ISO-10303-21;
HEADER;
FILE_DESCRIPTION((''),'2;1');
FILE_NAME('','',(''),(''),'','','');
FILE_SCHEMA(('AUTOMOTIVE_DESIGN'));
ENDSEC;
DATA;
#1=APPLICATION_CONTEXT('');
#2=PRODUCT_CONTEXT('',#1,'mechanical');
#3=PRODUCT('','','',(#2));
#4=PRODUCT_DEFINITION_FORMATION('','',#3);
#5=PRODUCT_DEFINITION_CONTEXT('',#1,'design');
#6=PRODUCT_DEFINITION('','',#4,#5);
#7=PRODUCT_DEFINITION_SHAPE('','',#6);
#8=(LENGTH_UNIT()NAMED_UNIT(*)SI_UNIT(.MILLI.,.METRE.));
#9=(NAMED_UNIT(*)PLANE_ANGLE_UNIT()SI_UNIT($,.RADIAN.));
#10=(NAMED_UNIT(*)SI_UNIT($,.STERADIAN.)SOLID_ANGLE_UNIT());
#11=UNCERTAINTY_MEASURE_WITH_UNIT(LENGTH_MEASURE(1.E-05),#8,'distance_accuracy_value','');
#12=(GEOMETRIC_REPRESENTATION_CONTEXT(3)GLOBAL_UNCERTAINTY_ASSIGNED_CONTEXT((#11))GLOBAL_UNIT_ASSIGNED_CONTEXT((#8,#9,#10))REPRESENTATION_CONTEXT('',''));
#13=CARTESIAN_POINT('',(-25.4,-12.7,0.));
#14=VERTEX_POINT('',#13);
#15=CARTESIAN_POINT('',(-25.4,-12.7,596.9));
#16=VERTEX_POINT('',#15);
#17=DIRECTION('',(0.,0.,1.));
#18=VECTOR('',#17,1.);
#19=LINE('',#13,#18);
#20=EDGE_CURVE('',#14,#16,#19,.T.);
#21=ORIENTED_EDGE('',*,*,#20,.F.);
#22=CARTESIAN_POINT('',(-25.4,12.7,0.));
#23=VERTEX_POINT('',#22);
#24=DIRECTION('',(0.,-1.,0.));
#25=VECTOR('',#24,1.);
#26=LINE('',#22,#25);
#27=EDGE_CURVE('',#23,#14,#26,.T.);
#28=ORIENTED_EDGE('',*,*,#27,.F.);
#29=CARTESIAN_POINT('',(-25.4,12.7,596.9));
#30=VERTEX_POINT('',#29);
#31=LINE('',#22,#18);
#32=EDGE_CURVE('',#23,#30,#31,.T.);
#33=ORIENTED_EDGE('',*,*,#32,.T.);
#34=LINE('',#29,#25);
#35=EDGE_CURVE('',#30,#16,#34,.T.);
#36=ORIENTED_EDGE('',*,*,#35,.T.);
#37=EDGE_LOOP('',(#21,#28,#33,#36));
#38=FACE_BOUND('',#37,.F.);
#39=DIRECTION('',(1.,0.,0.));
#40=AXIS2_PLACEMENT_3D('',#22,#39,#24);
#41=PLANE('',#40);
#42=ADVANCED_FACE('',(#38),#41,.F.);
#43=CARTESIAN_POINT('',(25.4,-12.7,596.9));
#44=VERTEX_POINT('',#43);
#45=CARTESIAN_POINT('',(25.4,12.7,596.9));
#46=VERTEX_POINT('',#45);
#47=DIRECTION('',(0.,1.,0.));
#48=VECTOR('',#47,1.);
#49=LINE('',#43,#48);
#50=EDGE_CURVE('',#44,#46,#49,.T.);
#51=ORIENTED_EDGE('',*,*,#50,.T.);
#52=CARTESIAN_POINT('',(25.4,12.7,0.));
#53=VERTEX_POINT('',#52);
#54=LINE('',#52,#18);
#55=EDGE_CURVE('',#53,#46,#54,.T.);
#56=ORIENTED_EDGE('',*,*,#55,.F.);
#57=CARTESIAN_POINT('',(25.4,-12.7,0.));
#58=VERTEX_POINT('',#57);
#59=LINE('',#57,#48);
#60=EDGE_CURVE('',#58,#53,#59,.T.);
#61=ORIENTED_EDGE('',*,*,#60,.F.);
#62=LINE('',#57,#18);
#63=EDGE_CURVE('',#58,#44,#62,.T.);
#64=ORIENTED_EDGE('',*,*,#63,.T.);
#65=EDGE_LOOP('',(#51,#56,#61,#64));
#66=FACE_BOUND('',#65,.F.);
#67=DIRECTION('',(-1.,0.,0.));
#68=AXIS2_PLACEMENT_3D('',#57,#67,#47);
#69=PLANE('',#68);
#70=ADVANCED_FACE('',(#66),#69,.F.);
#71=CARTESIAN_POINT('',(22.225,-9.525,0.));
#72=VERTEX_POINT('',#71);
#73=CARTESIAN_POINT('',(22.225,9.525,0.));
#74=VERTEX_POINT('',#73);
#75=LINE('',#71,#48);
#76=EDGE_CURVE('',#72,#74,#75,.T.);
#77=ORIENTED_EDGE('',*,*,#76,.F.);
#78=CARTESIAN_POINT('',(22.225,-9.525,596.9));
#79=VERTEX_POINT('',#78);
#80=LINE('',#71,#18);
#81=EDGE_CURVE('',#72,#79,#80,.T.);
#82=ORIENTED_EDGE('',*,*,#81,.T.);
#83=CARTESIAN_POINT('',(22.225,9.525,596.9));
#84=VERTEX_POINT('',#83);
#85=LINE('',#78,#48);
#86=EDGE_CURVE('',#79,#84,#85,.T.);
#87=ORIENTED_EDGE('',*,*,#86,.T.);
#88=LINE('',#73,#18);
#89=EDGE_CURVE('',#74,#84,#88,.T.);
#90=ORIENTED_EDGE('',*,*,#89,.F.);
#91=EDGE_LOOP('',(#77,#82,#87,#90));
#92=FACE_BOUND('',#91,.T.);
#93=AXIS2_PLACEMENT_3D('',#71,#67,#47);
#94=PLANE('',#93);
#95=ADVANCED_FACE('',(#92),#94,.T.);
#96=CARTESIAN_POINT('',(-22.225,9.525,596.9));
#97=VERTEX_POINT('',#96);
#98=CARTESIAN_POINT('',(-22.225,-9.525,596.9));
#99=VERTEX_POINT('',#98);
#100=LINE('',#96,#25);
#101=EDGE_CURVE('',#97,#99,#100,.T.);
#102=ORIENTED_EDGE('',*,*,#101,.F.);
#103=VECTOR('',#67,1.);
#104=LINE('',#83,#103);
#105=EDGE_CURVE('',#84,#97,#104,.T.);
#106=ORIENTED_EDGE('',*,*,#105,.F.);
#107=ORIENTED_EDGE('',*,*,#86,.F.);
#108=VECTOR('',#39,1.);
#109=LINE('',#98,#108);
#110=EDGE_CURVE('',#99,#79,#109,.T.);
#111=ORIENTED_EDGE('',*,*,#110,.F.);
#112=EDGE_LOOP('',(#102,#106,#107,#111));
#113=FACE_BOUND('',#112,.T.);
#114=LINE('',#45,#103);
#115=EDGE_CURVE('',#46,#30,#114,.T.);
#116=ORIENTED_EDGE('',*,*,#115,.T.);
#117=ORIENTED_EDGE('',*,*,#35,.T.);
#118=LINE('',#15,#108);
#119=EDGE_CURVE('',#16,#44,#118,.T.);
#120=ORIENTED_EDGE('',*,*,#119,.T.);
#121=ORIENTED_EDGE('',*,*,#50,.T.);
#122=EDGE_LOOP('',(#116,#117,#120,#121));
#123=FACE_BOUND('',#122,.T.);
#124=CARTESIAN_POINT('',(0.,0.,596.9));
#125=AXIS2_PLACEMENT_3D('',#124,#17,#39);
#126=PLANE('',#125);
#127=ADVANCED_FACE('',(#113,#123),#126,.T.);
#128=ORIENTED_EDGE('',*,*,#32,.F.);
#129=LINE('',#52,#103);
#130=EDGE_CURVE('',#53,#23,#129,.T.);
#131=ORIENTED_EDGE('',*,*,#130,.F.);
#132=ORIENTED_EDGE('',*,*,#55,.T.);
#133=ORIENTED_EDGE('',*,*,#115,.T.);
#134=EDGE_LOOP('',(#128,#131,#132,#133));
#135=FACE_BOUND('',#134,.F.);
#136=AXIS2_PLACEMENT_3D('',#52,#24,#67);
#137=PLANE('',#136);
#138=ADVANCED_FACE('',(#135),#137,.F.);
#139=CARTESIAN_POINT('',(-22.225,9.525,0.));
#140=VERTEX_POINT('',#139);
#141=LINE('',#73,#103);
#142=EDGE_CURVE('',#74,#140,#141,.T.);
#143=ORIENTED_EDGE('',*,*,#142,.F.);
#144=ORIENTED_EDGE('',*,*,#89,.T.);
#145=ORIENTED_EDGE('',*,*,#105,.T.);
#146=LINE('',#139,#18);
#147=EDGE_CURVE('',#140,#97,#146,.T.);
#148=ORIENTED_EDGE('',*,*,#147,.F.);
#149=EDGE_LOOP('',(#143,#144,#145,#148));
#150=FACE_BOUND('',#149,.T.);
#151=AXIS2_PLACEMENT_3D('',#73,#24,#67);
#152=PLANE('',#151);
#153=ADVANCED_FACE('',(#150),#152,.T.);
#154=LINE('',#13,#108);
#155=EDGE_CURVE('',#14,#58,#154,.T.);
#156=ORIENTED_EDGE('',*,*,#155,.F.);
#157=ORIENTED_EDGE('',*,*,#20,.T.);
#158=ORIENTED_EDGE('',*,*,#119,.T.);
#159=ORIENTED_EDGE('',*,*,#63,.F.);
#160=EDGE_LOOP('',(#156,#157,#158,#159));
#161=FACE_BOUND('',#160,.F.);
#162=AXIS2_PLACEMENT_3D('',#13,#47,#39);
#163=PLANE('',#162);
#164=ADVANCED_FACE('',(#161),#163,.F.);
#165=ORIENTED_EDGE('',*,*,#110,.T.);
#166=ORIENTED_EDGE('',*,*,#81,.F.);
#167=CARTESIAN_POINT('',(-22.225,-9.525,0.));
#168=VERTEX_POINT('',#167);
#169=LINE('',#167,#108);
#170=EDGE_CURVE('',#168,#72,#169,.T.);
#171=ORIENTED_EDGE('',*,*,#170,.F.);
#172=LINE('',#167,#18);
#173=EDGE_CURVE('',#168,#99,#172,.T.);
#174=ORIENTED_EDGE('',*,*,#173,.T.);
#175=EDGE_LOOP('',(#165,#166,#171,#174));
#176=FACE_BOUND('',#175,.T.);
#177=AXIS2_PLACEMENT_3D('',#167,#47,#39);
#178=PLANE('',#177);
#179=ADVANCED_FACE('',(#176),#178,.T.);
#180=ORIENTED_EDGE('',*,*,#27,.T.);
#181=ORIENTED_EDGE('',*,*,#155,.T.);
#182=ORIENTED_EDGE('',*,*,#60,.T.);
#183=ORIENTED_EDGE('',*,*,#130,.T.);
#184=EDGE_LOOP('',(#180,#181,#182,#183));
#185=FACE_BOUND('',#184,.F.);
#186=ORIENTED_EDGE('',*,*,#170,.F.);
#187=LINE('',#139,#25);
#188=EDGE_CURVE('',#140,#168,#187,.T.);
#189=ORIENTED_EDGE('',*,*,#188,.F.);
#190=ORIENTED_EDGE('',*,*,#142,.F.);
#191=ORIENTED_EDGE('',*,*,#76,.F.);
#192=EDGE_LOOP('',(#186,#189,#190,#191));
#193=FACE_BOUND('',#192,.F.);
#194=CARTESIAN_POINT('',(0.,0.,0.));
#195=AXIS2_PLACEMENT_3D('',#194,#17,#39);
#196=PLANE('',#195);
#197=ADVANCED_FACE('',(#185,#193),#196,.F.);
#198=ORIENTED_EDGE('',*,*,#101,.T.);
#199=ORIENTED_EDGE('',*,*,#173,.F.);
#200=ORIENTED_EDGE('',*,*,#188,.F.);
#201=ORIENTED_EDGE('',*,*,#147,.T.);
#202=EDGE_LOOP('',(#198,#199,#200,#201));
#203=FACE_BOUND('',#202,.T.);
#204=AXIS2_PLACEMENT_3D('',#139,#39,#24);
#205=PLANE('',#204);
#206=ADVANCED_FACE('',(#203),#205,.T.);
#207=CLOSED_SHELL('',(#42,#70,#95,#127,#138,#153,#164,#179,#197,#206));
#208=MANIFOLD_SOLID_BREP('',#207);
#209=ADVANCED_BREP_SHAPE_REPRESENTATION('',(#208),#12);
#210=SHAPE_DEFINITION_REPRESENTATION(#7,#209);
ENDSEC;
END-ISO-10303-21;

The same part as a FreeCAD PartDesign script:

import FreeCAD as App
import Part
import Sketcher

V = App.Vector
Q = App.Units.Quantity


def add_polygon(sketch, points):
    """Adds a closed chain of lines whose ends are joined by coincident constraints."""
    first, n = sketch.GeometryCount, len(points)
    for a, b in zip(points, points[1:] + points[:1]):
        sketch.addGeometry(Part.LineSegment(App.Vector(*a, 0), App.Vector(*b, 0)), False)
    for i in range(n):
        sketch.addConstraint(Sketcher.Constraint("Coincident", first + i, 2, first + (i + 1) % n, 1))

doc = App.newDocument("Part")
body = doc.addObject("PartDesign::Body", "Body")

# Sketch on XY plane
sketch1 = body.newObject("Sketcher::SketchObject", "Sketch")
sketch1.AttachmentSupport = (doc.getObject("XY_Plane"), [""])
sketch1.MapMode = "FlatFace"
add_polygon(sketch1, [(-25, 13), (-25, -13), (25, -13), (25, 13)])  # lines 0-3
add_polygon(sketch1, [(22, -10), (-22, -10), (-22, 10), (22, 10)])  # lines 4-7
sketch1.addConstraint([
    Sketcher.Constraint("Vertical", 0),
    Sketcher.Constraint("Horizontal", 1),
    Sketcher.Constraint("Vertical", 2),
    Sketcher.Constraint("Horizontal", 3),
    Sketcher.Constraint("Horizontal", 4),
    Sketcher.Constraint("Vertical", 5),
    Sketcher.Constraint("Horizontal", 6),
    Sketcher.Constraint("Vertical", 7),
    Sketcher.Constraint("Symmetric", 0, 2, 2, 2, -1, 1),
    Sketcher.Constraint("Symmetric", 4, 2, 6, 2, -1, 1),
    Sketcher.Constraint("DistanceX", 1, 1, 1, 2, Q("2 in")),
    Sketcher.Constraint("DistanceY", 0, 2, 0, 1, Q("1 in")),
    Sketcher.Constraint("DistanceX", 0, 2, 4, 2, Q("0.125 in")),
    Sketcher.Constraint("DistanceY", 0, 2, 4, 2, Q("0.125 in")),
])
pad1 = body.newObject("PartDesign::Pad", "Pad")
pad1.Profile = sketch1
pad1.Length = Q("23.5 in")

doc.recompute()
